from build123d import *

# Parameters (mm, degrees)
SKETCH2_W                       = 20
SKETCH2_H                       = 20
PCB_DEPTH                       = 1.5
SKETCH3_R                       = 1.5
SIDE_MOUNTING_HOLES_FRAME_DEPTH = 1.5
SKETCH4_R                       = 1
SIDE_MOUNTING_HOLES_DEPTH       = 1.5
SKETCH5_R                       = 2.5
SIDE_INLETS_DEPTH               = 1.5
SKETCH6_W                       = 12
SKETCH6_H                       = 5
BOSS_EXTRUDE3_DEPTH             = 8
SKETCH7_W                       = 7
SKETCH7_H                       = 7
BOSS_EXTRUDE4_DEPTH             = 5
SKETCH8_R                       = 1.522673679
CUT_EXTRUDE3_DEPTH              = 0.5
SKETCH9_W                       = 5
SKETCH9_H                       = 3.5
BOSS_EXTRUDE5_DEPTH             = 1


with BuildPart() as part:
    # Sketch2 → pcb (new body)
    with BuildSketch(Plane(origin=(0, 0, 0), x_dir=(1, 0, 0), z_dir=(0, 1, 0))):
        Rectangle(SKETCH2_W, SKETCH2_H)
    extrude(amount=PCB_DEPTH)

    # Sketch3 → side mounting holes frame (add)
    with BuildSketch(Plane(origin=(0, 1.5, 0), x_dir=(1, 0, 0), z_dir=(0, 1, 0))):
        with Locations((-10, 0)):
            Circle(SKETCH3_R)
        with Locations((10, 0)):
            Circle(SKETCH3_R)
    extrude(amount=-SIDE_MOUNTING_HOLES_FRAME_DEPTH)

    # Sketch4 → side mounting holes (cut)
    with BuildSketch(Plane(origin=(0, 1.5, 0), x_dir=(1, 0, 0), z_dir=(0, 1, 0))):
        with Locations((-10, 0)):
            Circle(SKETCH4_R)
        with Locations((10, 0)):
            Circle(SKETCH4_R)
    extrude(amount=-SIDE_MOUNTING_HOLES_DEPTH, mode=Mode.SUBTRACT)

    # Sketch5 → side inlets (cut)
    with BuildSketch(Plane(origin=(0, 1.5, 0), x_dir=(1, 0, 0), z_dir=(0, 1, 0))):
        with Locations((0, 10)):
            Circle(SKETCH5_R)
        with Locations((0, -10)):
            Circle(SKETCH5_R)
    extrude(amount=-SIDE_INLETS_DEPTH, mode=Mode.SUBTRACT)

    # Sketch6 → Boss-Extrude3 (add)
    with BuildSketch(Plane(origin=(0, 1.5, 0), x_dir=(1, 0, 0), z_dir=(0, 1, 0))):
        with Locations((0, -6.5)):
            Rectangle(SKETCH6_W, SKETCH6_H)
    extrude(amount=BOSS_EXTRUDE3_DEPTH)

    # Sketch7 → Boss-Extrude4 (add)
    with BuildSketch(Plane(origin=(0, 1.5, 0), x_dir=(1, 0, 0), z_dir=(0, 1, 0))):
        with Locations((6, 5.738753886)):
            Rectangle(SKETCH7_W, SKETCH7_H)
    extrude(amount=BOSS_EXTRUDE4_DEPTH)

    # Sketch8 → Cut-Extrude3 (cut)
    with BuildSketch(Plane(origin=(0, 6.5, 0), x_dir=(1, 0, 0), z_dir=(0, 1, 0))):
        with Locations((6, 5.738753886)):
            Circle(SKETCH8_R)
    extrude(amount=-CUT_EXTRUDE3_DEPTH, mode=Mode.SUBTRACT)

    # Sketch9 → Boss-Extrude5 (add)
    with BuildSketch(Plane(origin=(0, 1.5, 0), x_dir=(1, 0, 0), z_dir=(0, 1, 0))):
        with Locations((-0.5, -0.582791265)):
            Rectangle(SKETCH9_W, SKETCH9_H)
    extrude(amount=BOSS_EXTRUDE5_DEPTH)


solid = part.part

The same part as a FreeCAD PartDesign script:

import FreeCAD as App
import Part
import Sketcher


def add_polygon(sketch, points):
    """Adds a closed chain of lines whose ends are joined by coincident constraints."""
    first, n = sketch.GeometryCount, len(points)
    for a, b in zip(points, points[1:] + points[:1]):
        sketch.addGeometry(Part.LineSegment(App.Vector(*a, 0), App.Vector(*b, 0)), False)
    for i in range(n):
        sketch.addConstraint(Sketcher.Constraint("Coincident", first + i, 2, first + (i + 1) % n, 1))

doc = App.newDocument("Part")
body = doc.addObject("PartDesign::Body", "Body")

# Sketch on XZ plane
sketch1 = body.newObject("Sketcher::SketchObject", "Sketch")
sketch1.AttachmentSupport = (doc.getObject("XZ_Plane"), [""])
sketch1.MapMode = "FlatFace"
add_polygon(sketch1, [(-10, -10), (-10, 10), (10, 10), (10, -10)])  # lines 0-3
sketch1.addConstraint([
    Sketcher.Constraint("Vertical", 0),
    Sketcher.Constraint("Horizontal", 1),
    Sketcher.Constraint("Vertical", 2),
    Sketcher.Constraint("Horizontal", 3),
    Sketcher.Constraint("Symmetric", 0, 2, 2, 2, -1, 1),
    Sketcher.Constraint("Equal", 3, 0),
    Sketcher.Constraint("DistanceX", 1, 1, 1, 2, 20.0),
])
pad1 = body.newObject("PartDesign::Pad", "Pad")
pad1.Profile = sketch1
pad1.Length = 1.5
pad1.Reversed = True

# Sketch on XZ plane
sketch2 = body.newObject("Sketcher::SketchObject", "Sketch001")
sketch2.AttachmentSupport = (doc.getObject("XZ_Plane"), [""])
sketch2.MapMode = "FlatFace"
sketch2.AttachmentOffset = App.Placement(App.Vector(0, 0, -1.5), App.Rotation())
sketch2.addGeometry([
    Part.Circle(App.Vector(-10, 0, 0), App.Vector(0, 0, 1), 1.5),
    Part.Circle(App.Vector(10, 0, 0), App.Vector(0, 0, 1), 1.5),
], False)
sketch2.addConstraint([
    Sketcher.Constraint("Equal", 0, 1),
    Sketcher.Constraint("Symmetric", 0, 3, 1, 3, -1, 1),
    Sketcher.Constraint("PointOnObject", 0, 3, -1),
    Sketcher.Constraint("Diameter", 0, 3.0),
    Sketcher.Constraint("DistanceX", 0, 3, -1, 1, 10.0),
])
pad2 = body.newObject("PartDesign::Pad", "Pad001")
pad2.Profile = sketch2
pad2.Length = 1.5

# Sketch on XZ plane
sketch3 = body.newObject("Sketcher::SketchObject", "Sketch002")
sketch3.AttachmentSupport = (doc.getObject("XZ_Plane"), [""])
sketch3.MapMode = "FlatFace"
sketch3.AttachmentOffset = App.Placement(App.Vector(0, 0, -1.5), App.Rotation())
sketch3.addGeometry([
    Part.Circle(App.Vector(-10, 0, 0), App.Vector(0, 0, 1), 1),
    Part.Circle(App.Vector(10, 0, 0), App.Vector(0, 0, 1), 1),
], False)
sketch3.addConstraint([
    Sketcher.Constraint("Equal", 0, 1),
    Sketcher.Constraint("Symmetric", 0, 3, 1, 3, -1, 1),
    Sketcher.Constraint("PointOnObject", 0, 3, -1),
    Sketcher.Constraint("Diameter", 0, 2.0),
    Sketcher.Constraint("DistanceX", 0, 3, -1, 1, 10.0),
])
pocket1 = body.newObject("PartDesign::Pocket", "Pocket")
pocket1.Profile = sketch3
pocket1.Length = 1.5
pocket1.Reversed = True

# Sketch on XZ plane
sketch4 = body.newObject("Sketcher::SketchObject", "Sketch003")
sketch4.AttachmentSupport = (doc.getObject("XZ_Plane"), [""])
sketch4.MapMode = "FlatFace"
sketch4.AttachmentOffset = App.Placement(App.Vector(0, 0, -1.5), App.Rotation())
sketch4.addGeometry([
    Part.Circle(App.Vector(0, -10, 0), App.Vector(0, 0, 1), 2.5),
    Part.Circle(App.Vector(0, 10, 0), App.Vector(0, 0, 1), 2.5),
], False)
sketch4.addConstraint([
    Sketcher.Constraint("Equal", 0, 1),
    Sketcher.Constraint("Symmetric", 0, 3, 1, 3, -1, 1),
    Sketcher.Constraint("PointOnObject", 0, 3, -2),
    Sketcher.Constraint("Diameter", 0, 5.0),
    Sketcher.Constraint("DistanceY", 0, 3, -1, 1, 10.0),
])
pocket2 = body.newObject("PartDesign::Pocket", "Pocket001")
pocket2.Profile = sketch4
pocket2.Length = 1.5
pocket2.Reversed = True

# Sketch on XZ plane
sketch5 = body.newObject("Sketcher::SketchObject", "Sketch004")
sketch5.AttachmentSupport = (doc.getObject("XZ_Plane"), [""])
sketch5.MapMode = "FlatFace"
sketch5.AttachmentOffset = App.Placement(App.Vector(0, 0, -1.5), App.Rotation())
add_polygon(sketch5, [(-6, 4), (-6, 9), (6, 9), (6, 4)])  # lines 0-3
sketch5.addConstraint([
    Sketcher.Constraint("Vertical", 0),
    Sketcher.Constraint("Horizontal", 1),
    Sketcher.Constraint("Vertical", 2),
    Sketcher.Constraint("Horizontal", 3),
    Sketcher.Constraint("DistanceX", 1, 1, 1, 2, 12.0),
    Sketcher.Constraint("DistanceY", 0, 1, 0, 2, 5.0),
    Sketcher.Constraint("DistanceX", 0, 2, -1, 1, 6.0),
    Sketcher.Constraint("DistanceY", -1, 1, 0, 2, 9.0),
])
pad3 = body.newObject("PartDesign::Pad", "Pad002")
pad3.Profile = sketch5
pad3.Length = 8
pad3.Reversed = True

# Sketch on XZ plane
sketch6 = body.newObject("Sketcher::SketchObject", "Sketch005")
sketch6.AttachmentSupport = (doc.getObject("XZ_Plane"), [""])
sketch6.MapMode = "FlatFace"
sketch6.AttachmentOffset = App.Placement(App.Vector(0, 0, -1.5), App.Rotation())
add_polygon(sketch6, [(2.5, -9.238754), (2.5, -2.238754), (9.5, -2.238754), (9.5, -9.238754)])  # lines 0-3
sketch6.addConstraint([
    Sketcher.Constraint("Vertical", 0),
    Sketcher.Constraint("Horizontal", 1),
    Sketcher.Constraint("Vertical", 2),
    Sketcher.Constraint("Horizontal", 3),
    Sketcher.Constraint("Equal", 3, 0),
    Sketcher.Constraint("DistanceX", 1, 1, 1, 2, 7.0),
    Sketcher.Constraint("DistanceX", -1, 1, 0, 2, 2.5),
    Sketcher.Constraint("DistanceY", 0, 2, -1, 1, 2.238754),
])
pad4 = body.newObject("PartDesign::Pad", "Pad003")
pad4.Profile = sketch6
pad4.Length = 5
pad4.Reversed = True

# Sketch on XZ plane
sketch7 = body.newObject("Sketcher::SketchObject", "Sketch006")
sketch7.AttachmentSupport = (doc.getObject("XZ_Plane"), [""])
sketch7.MapMode = "FlatFace"
sketch7.AttachmentOffset = App.Placement(App.Vector(0, 0, -6.5), App.Rotation())
sketch7.addGeometry(Part.Circle(App.Vector(6, -5.738754, 0), App.Vector(0, 0, 1), 1.522674), False)
sketch7.addConstraint([
    Sketcher.Constraint("DistanceX", -1, 1, 0, 3, 6.0),
    Sketcher.Constraint("Diameter", 0, 3.045347),
    Sketcher.Constraint("DistanceY", 0, 3, -1, 1, 5.738754),
])
pocket3 = body.newObject("PartDesign::Pocket", "Pocket002")
pocket3.Profile = sketch7
pocket3.Length = 0.5
pocket3.Reversed = True

# Sketch on XZ plane
sketch8 = body.newObject("Sketcher::SketchObject", "Sketch007")
sketch8.AttachmentSupport = (doc.getObject("XZ_Plane"), [""])
sketch8.MapMode = "FlatFace"
sketch8.AttachmentOffset = App.Placement(App.Vector(0, 0, -1.5), App.Rotation())
add_polygon(sketch8, [(-3, -1.167209), (-3, 2.332791), (2, 2.332791), (2, -1.167209)])  # lines 0-3
sketch8.addConstraint([
    Sketcher.Constraint("Vertical", 0),
    Sketcher.Constraint("Horizontal", 1),
    Sketcher.Constraint("Vertical", 2),
    Sketcher.Constraint("Horizontal", 3),
    Sketcher.Constraint("DistanceX", 1, 1, 1, 2, 5.0),
    Sketcher.Constraint("DistanceY", 0, 1, 0, 2, 3.5),
    Sketcher.Constraint("DistanceX", 0, 2, -1, 1, 3.0),
    Sketcher.Constraint("DistanceY", -1, 1, 0, 2, 2.332791),
])
pad5 = body.newObject("PartDesign::Pad", "Pad004")
pad5.Profile = sketch8
pad5.Length = 1
pad5.Reversed = True

doc.recompute()
